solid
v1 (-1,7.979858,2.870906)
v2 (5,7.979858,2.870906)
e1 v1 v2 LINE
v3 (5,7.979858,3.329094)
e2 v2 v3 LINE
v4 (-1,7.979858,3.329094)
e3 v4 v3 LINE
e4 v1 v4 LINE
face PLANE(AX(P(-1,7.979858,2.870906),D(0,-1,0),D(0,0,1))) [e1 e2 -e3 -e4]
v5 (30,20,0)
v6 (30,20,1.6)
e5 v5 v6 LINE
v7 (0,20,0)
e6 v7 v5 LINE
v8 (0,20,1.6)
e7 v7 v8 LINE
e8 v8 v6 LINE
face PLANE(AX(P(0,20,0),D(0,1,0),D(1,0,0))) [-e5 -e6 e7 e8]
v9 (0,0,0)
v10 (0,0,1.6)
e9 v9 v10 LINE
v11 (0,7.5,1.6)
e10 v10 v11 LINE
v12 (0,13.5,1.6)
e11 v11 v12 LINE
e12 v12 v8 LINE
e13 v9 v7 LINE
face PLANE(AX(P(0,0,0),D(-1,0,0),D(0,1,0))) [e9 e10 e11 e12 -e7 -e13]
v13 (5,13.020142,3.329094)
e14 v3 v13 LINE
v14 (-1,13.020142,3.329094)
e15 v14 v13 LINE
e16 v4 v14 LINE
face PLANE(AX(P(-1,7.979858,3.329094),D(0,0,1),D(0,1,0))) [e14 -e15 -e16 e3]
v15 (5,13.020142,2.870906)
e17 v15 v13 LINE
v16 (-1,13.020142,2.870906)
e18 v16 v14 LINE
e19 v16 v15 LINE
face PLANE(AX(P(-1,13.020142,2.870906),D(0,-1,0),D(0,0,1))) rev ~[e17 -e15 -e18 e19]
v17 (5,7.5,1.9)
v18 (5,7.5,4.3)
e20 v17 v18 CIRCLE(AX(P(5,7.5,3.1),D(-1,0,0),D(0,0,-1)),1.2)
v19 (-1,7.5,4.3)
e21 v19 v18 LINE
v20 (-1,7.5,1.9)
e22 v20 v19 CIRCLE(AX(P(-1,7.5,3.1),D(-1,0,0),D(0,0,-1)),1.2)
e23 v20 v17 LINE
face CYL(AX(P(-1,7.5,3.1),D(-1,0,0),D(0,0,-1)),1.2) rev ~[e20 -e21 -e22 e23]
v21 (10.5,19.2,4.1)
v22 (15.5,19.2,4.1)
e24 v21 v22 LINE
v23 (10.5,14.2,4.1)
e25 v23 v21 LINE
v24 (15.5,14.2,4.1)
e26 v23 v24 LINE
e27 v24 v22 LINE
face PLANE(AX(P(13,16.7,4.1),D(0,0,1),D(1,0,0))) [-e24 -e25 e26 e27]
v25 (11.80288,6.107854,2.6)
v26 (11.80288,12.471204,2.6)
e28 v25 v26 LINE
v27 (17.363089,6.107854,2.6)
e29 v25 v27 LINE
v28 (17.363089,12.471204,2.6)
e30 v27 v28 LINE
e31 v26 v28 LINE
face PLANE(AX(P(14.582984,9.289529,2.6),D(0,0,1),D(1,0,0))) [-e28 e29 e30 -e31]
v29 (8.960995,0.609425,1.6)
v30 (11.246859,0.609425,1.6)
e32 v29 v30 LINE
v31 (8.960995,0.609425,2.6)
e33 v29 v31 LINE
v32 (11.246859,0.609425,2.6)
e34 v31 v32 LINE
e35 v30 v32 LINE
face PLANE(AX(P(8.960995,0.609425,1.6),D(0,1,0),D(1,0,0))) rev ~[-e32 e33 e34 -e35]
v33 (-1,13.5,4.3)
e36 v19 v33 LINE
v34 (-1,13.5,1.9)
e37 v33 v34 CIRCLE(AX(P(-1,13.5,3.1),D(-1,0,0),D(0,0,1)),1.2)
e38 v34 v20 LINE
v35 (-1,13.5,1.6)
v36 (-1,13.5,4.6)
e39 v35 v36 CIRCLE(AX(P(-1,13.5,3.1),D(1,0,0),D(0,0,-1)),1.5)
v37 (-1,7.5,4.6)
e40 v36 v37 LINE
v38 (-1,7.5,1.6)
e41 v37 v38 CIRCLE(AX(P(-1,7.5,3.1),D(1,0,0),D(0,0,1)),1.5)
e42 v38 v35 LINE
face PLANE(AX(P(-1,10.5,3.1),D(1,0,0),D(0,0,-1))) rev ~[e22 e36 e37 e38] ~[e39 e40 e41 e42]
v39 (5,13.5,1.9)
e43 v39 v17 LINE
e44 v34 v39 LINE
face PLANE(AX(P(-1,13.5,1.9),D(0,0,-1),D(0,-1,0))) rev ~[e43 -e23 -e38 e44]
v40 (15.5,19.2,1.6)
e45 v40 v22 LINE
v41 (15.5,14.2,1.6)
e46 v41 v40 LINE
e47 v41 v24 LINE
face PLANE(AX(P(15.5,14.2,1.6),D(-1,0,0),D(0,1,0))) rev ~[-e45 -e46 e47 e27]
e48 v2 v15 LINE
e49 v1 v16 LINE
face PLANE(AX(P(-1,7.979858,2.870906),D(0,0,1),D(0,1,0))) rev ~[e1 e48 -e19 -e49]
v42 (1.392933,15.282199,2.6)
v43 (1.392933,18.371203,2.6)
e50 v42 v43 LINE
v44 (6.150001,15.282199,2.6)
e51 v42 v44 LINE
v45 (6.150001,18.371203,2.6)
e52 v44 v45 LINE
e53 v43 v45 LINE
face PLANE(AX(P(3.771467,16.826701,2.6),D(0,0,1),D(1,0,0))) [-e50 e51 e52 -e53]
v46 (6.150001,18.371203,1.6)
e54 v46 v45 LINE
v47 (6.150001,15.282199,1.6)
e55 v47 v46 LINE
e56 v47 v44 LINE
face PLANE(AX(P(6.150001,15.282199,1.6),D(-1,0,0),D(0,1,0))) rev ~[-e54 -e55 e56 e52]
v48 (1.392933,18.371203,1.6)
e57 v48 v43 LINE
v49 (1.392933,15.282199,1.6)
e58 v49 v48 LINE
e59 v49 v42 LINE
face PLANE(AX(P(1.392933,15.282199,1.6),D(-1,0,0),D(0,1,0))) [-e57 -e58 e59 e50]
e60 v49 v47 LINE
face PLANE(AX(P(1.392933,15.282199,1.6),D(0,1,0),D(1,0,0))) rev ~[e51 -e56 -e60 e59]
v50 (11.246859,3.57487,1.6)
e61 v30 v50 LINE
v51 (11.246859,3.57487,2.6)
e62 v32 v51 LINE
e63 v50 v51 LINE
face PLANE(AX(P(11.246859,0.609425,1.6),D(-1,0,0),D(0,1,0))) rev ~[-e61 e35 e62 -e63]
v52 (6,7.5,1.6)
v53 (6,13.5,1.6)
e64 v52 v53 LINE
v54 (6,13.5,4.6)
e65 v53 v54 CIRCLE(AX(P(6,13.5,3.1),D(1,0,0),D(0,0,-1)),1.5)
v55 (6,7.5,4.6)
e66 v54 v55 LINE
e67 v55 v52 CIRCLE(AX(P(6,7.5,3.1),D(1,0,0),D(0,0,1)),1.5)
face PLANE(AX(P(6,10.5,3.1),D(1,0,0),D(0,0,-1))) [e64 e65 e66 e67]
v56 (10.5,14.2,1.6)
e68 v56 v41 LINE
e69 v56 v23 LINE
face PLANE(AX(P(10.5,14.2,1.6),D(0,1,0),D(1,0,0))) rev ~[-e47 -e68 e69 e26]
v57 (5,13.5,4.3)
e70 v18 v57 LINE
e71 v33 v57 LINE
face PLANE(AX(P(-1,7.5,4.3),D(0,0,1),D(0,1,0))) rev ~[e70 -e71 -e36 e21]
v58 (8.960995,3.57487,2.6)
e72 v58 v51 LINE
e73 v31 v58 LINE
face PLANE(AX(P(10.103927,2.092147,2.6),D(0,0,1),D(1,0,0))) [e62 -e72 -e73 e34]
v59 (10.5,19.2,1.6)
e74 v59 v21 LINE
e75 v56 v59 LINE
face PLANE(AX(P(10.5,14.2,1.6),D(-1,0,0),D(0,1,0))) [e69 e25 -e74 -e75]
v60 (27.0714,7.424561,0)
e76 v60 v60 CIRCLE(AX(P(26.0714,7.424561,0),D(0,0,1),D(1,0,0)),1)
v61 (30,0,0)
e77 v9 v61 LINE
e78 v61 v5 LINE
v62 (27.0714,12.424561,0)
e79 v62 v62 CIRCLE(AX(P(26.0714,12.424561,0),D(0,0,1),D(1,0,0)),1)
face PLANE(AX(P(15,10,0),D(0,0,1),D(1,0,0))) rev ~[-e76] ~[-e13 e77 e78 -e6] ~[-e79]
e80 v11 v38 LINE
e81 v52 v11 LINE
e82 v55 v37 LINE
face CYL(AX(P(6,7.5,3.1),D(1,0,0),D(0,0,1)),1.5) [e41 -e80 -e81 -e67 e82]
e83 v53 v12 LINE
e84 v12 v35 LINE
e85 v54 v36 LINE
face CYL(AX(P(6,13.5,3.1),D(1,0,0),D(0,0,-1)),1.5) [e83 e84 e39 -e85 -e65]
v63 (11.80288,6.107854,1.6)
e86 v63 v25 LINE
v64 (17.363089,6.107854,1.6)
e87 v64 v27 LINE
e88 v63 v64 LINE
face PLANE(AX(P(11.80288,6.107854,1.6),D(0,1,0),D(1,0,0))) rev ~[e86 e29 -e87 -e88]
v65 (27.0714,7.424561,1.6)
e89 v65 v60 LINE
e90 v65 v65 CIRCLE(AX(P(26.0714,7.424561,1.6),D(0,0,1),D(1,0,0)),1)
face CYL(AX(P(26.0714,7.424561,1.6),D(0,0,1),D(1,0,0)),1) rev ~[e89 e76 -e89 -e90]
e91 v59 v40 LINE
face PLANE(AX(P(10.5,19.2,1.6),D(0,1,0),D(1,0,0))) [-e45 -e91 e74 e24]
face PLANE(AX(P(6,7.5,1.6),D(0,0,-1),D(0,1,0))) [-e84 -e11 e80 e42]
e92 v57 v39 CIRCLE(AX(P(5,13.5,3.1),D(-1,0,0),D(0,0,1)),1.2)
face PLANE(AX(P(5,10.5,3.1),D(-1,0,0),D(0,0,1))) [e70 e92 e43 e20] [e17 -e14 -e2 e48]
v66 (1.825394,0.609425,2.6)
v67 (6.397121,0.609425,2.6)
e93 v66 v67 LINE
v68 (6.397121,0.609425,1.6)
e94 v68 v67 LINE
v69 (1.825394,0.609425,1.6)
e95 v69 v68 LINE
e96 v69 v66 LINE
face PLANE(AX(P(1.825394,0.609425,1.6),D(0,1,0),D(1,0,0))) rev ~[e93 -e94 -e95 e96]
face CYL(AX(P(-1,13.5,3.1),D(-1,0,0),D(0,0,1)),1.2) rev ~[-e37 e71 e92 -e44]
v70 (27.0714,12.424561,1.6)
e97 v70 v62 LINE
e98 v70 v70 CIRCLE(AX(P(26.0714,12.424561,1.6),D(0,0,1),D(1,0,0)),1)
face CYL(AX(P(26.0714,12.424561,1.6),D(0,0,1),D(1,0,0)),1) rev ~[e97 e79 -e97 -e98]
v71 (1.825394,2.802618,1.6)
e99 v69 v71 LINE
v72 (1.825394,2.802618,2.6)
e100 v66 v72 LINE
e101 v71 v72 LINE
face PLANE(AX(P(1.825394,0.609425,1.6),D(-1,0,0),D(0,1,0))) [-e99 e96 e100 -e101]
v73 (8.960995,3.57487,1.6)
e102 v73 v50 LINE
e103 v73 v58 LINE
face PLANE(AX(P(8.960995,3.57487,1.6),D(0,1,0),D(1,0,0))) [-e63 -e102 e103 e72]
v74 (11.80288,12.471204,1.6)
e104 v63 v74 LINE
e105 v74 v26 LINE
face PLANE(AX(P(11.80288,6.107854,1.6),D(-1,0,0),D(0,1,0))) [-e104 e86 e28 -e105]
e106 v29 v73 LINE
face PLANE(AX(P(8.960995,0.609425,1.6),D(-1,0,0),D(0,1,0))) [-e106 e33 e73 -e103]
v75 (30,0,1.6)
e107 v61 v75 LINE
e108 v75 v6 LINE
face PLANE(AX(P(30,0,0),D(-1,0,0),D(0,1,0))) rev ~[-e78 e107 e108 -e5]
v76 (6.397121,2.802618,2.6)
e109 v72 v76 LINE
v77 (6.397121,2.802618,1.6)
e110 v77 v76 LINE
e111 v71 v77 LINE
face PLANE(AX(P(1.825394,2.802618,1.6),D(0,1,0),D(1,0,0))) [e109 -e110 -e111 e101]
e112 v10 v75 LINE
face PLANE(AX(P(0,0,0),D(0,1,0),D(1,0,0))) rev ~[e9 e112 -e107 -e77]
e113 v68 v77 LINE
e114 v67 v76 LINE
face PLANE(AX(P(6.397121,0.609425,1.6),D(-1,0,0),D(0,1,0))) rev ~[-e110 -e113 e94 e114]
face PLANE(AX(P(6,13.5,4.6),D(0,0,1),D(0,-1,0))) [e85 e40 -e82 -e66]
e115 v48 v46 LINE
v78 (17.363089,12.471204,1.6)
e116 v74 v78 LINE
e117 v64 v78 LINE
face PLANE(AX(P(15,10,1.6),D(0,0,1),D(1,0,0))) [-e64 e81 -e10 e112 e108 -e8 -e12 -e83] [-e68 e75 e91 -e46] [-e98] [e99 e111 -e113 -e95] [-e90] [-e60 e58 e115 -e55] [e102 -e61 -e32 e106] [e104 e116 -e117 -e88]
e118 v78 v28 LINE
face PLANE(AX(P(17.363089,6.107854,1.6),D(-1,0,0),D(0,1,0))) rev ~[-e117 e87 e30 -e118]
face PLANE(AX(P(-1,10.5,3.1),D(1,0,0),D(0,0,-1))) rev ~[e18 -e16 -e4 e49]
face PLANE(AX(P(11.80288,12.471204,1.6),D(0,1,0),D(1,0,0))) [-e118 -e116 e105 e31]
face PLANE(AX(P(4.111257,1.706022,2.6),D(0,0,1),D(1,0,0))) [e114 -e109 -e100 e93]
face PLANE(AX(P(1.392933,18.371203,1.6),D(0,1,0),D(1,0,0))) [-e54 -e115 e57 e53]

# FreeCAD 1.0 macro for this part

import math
import FreeCAD as App
import Part
import Sketcher
from FreeCAD import Vector
Q = App.Units.Quantity

doc = App.newDocument("Part")
body = doc.addObject("PartDesign::Body", "Body")

sketch1 = body.newObject("Sketcher::SketchObject", "Sketch")
sketch1.AttachmentSupport = (doc.getObject("XY_Plane"), [""])
sketch1.MapMode = "FlatFace"
sketch1.addGeometry([
    Part.LineSegment(Vector(0, 20, 0), Vector(0, 0, 0)),
    Part.LineSegment(Vector(0, 0, 0), Vector(30, 0, 0)),
    Part.LineSegment(Vector(30, 0, 0), Vector(30, 20, 0)),
    Part.LineSegment(Vector(30, 20, 0), Vector(0, 20, 0)),
], False)
sketch1.addConstraint([
    Sketcher.Constraint("Coincident", 0, 2, 1, 1),
    Sketcher.Constraint("Coincident", 1, 2, 2, 1),
    Sketcher.Constraint("Coincident", 2, 2, 3, 1),
    Sketcher.Constraint("Coincident", 3, 2, 0, 1),
    Sketcher.Constraint("Vertical", 0),
    Sketcher.Constraint("Horizontal", 1),
    Sketcher.Constraint("Vertical", 2),
    Sketcher.Constraint("Horizontal", 3),
    Sketcher.Constraint("Coincident", 0, 2, -1, 1),
    Sketcher.Constraint("DistanceX", 1, 1, 1, 2, Q("30 mm")),
    Sketcher.Constraint("DistanceY", 0, 2, 0, 1, Q("20 mm")),
])
pad1 = body.newObject("PartDesign::Pad", "Pad")
pad1.Profile = sketch1
pad1.Length = 1.6

sketch2 = body.newObject("Sketcher::SketchObject", "Sketch001")
sketch2.AttachmentSupport = (doc.getObject("XY_Plane"), [""])
sketch2.MapMode = "FlatFace"
sketch2.AttachmentOffset = App.Placement(Vector(0, 0, 1.6), App.Rotation())
sketch2.addGeometry([
    Part.LineSegment(Vector(10.5, 19.2, 0), Vector(10.5, 14.2, 0)),
    Part.LineSegment(Vector(10.5, 14.2, 0), Vector(15.5, 14.2, 0)),
    Part.LineSegment(Vector(15.5, 14.2, 0), Vector(15.5, 19.2, 0)),
    Part.LineSegment(Vector(15.5, 19.2, 0), Vector(10.5, 19.2, 0)),
], False)
sketch2.addConstraint([
    Sketcher.Constraint("Coincident", 0, 2, 1, 1),
    Sketcher.Constraint("Coincident", 1, 2, 2, 1),
    Sketcher.Constraint("Coincident", 2, 2, 3, 1),
    Sketcher.Constraint("Coincident", 3, 2, 0, 1),
    Sketcher.Constraint("Vertical", 0),
    Sketcher.Constraint("Horizontal", 1),
    Sketcher.Constraint("Vertical", 2),
    Sketcher.Constraint("Horizontal", 3),
    Sketcher.Constraint("Equal", 3, 0),
    Sketcher.Constraint("DistanceX", 1, 1, 1, 2, Q("5 mm")),
    Sketcher.Constraint("DistanceX", -1, 1, 0, 2, Q("10.5 mm")),
    Sketcher.Constraint("DistanceY", -1, 1, 0, 2, Q("14.2 mm")),
])
pad2 = body.newObject("PartDesign::Pad", "Pad001")
pad2.Profile = sketch2
pad2.Length = 2.5

sketch3 = body.newObject("Sketcher::SketchObject", "Sketch002")
sketch3.AttachmentSupport = (doc.getObject("XY_Plane"), [""])
sketch3.MapMode = "FlatFace"
sketch3.AttachmentOffset = App.Placement(Vector(0, 0, 1.6), App.Rotation())
sketch3.addGeometry([
    Part.LineSegment(Vector(11.80288, 12.471204, 0), Vector(11.80288, 6.107854, 0)),
    Part.LineSegment(Vector(11.80288, 6.107854, 0), Vector(17.363089, 6.107854, 0)),
    Part.LineSegment(Vector(17.363089, 6.107854, 0), Vector(17.363089, 12.471204, 0)),
    Part.LineSegment(Vector(17.363089, 12.471204, 0), Vector(11.80288, 12.471204, 0)),
    Part.LineSegment(Vector(8.960995, 3.57487, 0), Vector(8.960995, 0.609425, 0)),
    Part.LineSegment(Vector(8.960995, 0.609425, 0), Vector(11.246859, 0.609425, 0)),
    Part.LineSegment(Vector(11.246859, 0.609425, 0), Vector(11.246859, 3.57487, 0)),
    Part.LineSegment(Vector(11.246859, 3.57487, 0), Vector(8.960995, 3.57487, 0)),
    Part.LineSegment(Vector(1.825394, 2.802618, 0), Vector(1.825394, 0.609425, 0)),
    Part.LineSegment(Vector(1.825394, 0.609425, 0), Vector(6.397121, 0.609425, 0)),
    Part.LineSegment(Vector(6.397121, 0.609425, 0), Vector(6.397121, 2.802618, 0)),
    Part.LineSegment(Vector(6.397121, 2.802618, 0), Vector(1.825394, 2.802618, 0)),
    Part.LineSegment(Vector(1.392933, 18.371203, 0), Vector(1.392933, 15.282199, 0)),
    Part.LineSegment(Vector(1.392933, 15.282199, 0), Vector(6.150001, 15.282199, 0)),
    Part.LineSegment(Vector(6.150001, 15.282199, 0), Vector(6.150001, 18.371203, 0)),
    Part.LineSegment(Vector(6.150001, 18.371203, 0), Vector(1.392933, 18.371203, 0)),
], False)
sketch3.addConstraint([
    Sketcher.Constraint("Coincident", 0, 2, 1, 1),
    Sketcher.Constraint("Coincident", 1, 2, 2, 1),
    Sketcher.Constraint("Coincident", 2, 2, 3, 1),
    Sketcher.Constraint("Coincident", 3, 2, 0, 1),
    Sketcher.Constraint("Coincident", 4, 2, 5, 1),
    Sketcher.Constraint("Coincident", 5, 2, 6, 1),
    Sketcher.Constraint("Coincident", 6, 2, 7, 1),
    Sketcher.Constraint("Coincident", 7, 2, 4, 1),
    Sketcher.Constraint("Coincident", 8, 2, 9, 1),
    Sketcher.Constraint("Coincident", 9, 2, 10, 1),
    Sketcher.Constraint("Coincident", 10, 2, 11, 1),
    Sketcher.Constraint("Coincident", 11, 2, 8, 1),
    Sketcher.Constraint("Coincident", 12, 2, 13, 1),
    Sketcher.Constraint("Coincident", 13, 2, 14, 1),
    Sketcher.Constraint("Coincident", 14, 2, 15, 1),
    Sketcher.Constraint("Coincident", 15, 2, 12, 1),
    Sketcher.Constraint("Vertical", 0),
    Sketcher.Constraint("Horizontal", 1),
    Sketcher.Constraint("Vertical", 2),
    Sketcher.Constraint("Horizontal", 3),
    Sketcher.Constraint("Vertical", 4),
    Sketcher.Constraint("Horizontal", 5),
    Sketcher.Constraint("Vertical", 6),
    Sketcher.Constraint("Horizontal", 7),
    Sketcher.Constraint("Vertical", 8),
    Sketcher.Constraint("Horizontal", 9),
    Sketcher.Constraint("Vertical", 10),
    Sketcher.Constraint("Horizontal", 11),
    Sketcher.Constraint("Vertical", 12),
    Sketcher.Constraint("Horizontal", 13),
    Sketcher.Constraint("Vertical", 14),
    Sketcher.Constraint("Horizontal", 15),
    Sketcher.Constraint("Horizontal", 5, 2, 8, 2),
    Sketcher.Constraint("DistanceY", 3, 2, 14, 2, Q("5.9 mm")),
    Sketcher.Constraint("DistanceX", -1, 1, 13, 2, Q("6.150001 mm")),
    Sketcher.Constraint("DistanceX", 1, 1, 1, 2, Q("5.560209 mm")),
    Sketcher.Constraint("DistanceY", 0, 2, 0, 1, Q("6.36335 mm")),
    Sketcher.Constraint("DistanceY", -1, 1, 12, 2, Q("15.282199 mm")),
    Sketcher.Constraint("DistanceX", 8, 2, 4, 2, Q("7.135602 mm")),
    Sketcher.Constraint("DistanceX", 5, 1, 5, 2, Q("2.285864 mm")),
    Sketcher.Constraint("DistanceX", 9, 1, 9, 2, Q("4.571727 mm")),
    Sketcher.Constraint("DistanceX", 13, 1, 13, 2, Q("4.757068 mm")),
    Sketcher.Constraint("DistanceY", 4, 2, 4, 1, Q("2.965445 mm")),
    Sketcher.Constraint("DistanceY", 8, 2, 8, 1, Q("2.193194 mm")),
    Sketcher.Constraint("DistanceY", 12, 2, 12, 1, Q("3.089005 mm")),
    Sketcher.Constraint("DistanceX", -1, 1, 0, 2, Q("11.80288 mm")),
    Sketcher.Constraint("DistanceX", -1, 1, 5, 2, Q("11.246859 mm")),
    Sketcher.Constraint("DistanceY", -1, 1, 6, 2, Q("3.57487 mm")),
])
pad3 = body.newObject("PartDesign::Pad", "Pad002")
pad3.Profile = sketch3
pad3.Length = 1

sketch4 = body.newObject("Sketcher::SketchObject", "Sketch003")
sketch4.AttachmentSupport = (doc.getObject("XY_Plane"), [""])
sketch4.MapMode = "FlatFace"
sketch4.AttachmentOffset = App.Placement(Vector(0, 0, 1.6), App.Rotation())
sketch4.addGeometry([
    Part.Circle(Vector(26.0714, 12.424561, 0), Vector(0, 0, 1), 1),
    Part.Circle(Vector(26.0714, 7.424561, 0), Vector(0, 0, 1), 1),
], False)
sketch4.addConstraint([
    Sketcher.Constraint("Equal", 0, 1),
    Sketcher.Constraint("Vertical", 0, 3, 1, 3),
    Sketcher.Constraint("Diameter", 0, Q("2 mm")),
    Sketcher.Constraint("DistanceY", 1, 3, 0, 3, Q("5 mm")),
    Sketcher.Constraint("DistanceX", -1, 1, 0, 3, Q("26.0714 mm")),
    Sketcher.Constraint("DistanceY", -1, 1, 0, 3, Q("12.424561 mm")),
])
pocket1 = body.newObject("PartDesign::Pocket", "Pocket")
pocket1.Profile = sketch4
pocket1.Length = 11

sketch5 = body.newObject("Sketcher::SketchObject", "Sketch004")
sketch5.AttachmentSupport = (doc.getObject("YZ_Plane"), [""])
sketch5.MapMode = "FlatFace"
sketch5.addGeometry([
    Part.LineSegment(Vector(7.5, 4.6, 0), Vector(13.5, 4.6, 0)),
    Part.ArcOfCircle(Part.Circle(Vector(13.5, 3.1, 0), Vector(0, 0, 1), 1.5), math.radians(-90), math.radians(90)),
    Part.LineSegment(Vector(13.5, 1.6, 0), Vector(7.5, 1.6, 0)),
    Part.ArcOfCircle(Part.Circle(Vector(7.5, 3.1, 0), Vector(0, 0, 1), 1.5), math.radians(90), math.radians(270)),
], False)
sketch5.addConstraint([
    Sketcher.Constraint("Tangent", 0, 2, 1, 2),
    Sketcher.Constraint("Tangent", 1, 1, 2, 1),
    Sketcher.Constraint("Tangent", 2, 2, 3, 2),
    Sketcher.Constraint("Tangent", 3, 1, 0, 1),
    Sketcher.Constraint("Horizontal", 0),
    Sketcher.Constraint("Horizontal", 2),
    Sketcher.Constraint("Radius", 1, Q("1.5 mm")),
    Sketcher.Constraint("DistanceX", 0, 1, 0, 2, Q("6 mm")),
    Sketcher.Constraint("DistanceX", -1, 1, 1, 3, Q("13.5 mm")),
    Sketcher.Constraint("DistanceY", -1, 1, 1, 3, Q("3.1 mm")),
])
pad4 = body.newObject("PartDesign::Pad", "Pad003")
pad4.Profile = sketch5
pad4.Type = "TwoLengths"
pad4.Length = 1
pad4.Length2 = 6
pad4.Reversed = True

sketch6 = body.newObject("Sketcher::SketchObject", "Sketch005")
sketch6.AttachmentSupport = (doc.getObject("YZ_Plane"), [""])
sketch6.MapMode = "FlatFace"
sketch6.AttachmentOffset = App.Placement(Vector(0, 0, -1), App.Rotation())
sketch6.addGeometry([
    Part.LineSegment(Vector(13.5, 1.9, 0), Vector(7.5, 1.9, 0)),
    Part.ArcOfCircle(Part.Circle(Vector(7.5, 3.1, 0), Vector(0, 0, 1), 1.2), math.radians(90), math.radians(270)),
    Part.LineSegment(Vector(7.5, 4.3, 0), Vector(13.5, 4.3, 0)),
    Part.ArcOfCircle(Part.Circle(Vector(13.5, 3.1, 0), Vector(0, 0, 1), 1.2), math.radians(-90), math.radians(90)),
    Part.LineSegment(Vector(7.979858, 3.329094, 0), Vector(7.979858, 2.870906, 0)),
    Part.LineSegment(Vector(7.979858, 2.870906, 0), Vector(13.020142, 2.870906, 0)),
    Part.LineSegment(Vector(13.020142, 2.870906, 0), Vector(13.020142, 3.329094, 0)),
    Part.LineSegment(Vector(13.020142, 3.329094, 0), Vector(7.979858, 3.329094, 0)),
], False)
sketch6.addConstraint([
    Sketcher.Constraint("Tangent", 0, 2, 1, 2),
    Sketcher.Constraint("Tangent", 1, 1, 2, 1),
    Sketcher.Constraint("Tangent", 2, 2, 3, 2),
    Sketcher.Constraint("Tangent", 3, 1, 0, 1),
    Sketcher.Constraint("Coincident", 4, 2, 5, 1),
    Sketcher.Constraint("Coincident", 5, 2, 6, 1),
    Sketcher.Constraint("Coincident", 6, 2, 7, 1),
    Sketcher.Constraint("Coincident", 7, 2, 4, 1),
    Sketcher.Constraint("Horizontal", 0),
    Sketcher.Constraint("Horizontal", 2),
    Sketcher.Constraint("Vertical", 4),
    Sketcher.Constraint("Horizontal", 5),
    Sketcher.Constraint("Vertical", 6),
    Sketcher.Constraint("Horizontal", 7),
    Sketcher.Constraint("Radius", 1, Q("1.2 mm")),
    Sketcher.Constraint("DistanceX", 0, 2, 0, 1, Q("6 mm")),
    Sketcher.Constraint("DistanceX", -1, 1, 1, 3, Q("7.5 mm")),
    Sketcher.Constraint("DistanceY", -1, 1, 1, 3, Q("3.1 mm")),
    Sketcher.Constraint("DistanceY", 4, 2, 4, 1, Q("0.458188 mm")),
    Sketcher.Constraint("DistanceX", 5, 1, 5, 2, Q("5.040283 mm")),
    Sketcher.Constraint("DistanceX", -1, 1, 4, 2, Q("7.979858 mm")),
    Sketcher.Constraint("DistanceY", -1, 1, 4, 2, Q("2.870906 mm")),
])
pocket2 = body.newObject("PartDesign::Pocket", "Pocket001")
pocket2.Profile = sketch6
pocket2.Length = 6
pocket2.Reversed = True

doc.recompute()
